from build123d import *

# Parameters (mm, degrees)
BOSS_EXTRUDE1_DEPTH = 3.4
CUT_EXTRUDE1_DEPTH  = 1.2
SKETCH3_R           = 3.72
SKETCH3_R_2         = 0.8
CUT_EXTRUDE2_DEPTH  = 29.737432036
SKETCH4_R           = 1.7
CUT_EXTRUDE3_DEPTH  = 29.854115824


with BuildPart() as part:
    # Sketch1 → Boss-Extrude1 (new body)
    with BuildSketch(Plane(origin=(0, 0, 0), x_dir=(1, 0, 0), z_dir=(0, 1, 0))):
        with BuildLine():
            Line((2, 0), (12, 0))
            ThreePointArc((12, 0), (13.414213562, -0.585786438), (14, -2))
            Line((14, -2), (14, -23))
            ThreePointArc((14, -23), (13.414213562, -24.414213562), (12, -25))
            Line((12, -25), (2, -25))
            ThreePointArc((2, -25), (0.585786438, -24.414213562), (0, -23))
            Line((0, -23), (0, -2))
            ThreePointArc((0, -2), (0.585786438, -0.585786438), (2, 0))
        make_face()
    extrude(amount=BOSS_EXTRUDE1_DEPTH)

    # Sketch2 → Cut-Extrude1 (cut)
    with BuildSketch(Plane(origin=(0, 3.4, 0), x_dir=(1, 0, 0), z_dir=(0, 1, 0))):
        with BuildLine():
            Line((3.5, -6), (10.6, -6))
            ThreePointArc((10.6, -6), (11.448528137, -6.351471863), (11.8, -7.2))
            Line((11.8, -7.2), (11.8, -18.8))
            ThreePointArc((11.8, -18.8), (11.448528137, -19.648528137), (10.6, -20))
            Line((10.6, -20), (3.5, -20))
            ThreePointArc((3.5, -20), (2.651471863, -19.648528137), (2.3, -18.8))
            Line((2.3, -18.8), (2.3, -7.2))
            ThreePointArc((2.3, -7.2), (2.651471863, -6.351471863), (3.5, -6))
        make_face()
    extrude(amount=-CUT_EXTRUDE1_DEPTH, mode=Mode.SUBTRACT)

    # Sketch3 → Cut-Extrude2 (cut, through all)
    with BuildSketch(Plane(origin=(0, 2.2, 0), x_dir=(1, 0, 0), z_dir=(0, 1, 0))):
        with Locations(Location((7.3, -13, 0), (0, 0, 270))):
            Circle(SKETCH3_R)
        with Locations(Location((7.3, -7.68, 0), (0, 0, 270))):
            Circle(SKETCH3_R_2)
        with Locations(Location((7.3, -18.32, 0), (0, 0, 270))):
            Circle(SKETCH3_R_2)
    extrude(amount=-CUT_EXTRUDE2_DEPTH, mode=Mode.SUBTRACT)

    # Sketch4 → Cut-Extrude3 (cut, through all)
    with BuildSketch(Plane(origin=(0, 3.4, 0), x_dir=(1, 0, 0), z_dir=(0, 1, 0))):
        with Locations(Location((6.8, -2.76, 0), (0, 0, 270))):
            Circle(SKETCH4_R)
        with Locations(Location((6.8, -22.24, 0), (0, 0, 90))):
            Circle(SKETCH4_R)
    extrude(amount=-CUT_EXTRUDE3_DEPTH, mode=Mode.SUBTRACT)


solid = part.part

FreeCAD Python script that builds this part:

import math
import FreeCAD as App
import Part
import Sketcher
from FreeCAD import Vector
Q = App.Units.Quantity

doc = App.newDocument("Part")
body = doc.addObject("PartDesign::Body", "Body")

# Sketch on XZ plane
sketch1 = body.newObject("Sketcher::SketchObject", "Sketch")
sketch1.AttachmentSupport = (doc.getObject("XZ_Plane"), [""])
sketch1.MapMode = "FlatFace"
sketch1.addGeometry([
    Part.LineSegment(Vector(12, 0, 0), Vector(2, 0, 0)),  # 0
    Part.ArcOfCircle(Part.Circle(Vector(2, 2, 0), Vector(0, 0, 1), 2), math.radians(-180), math.radians(-90)),  # 1
    Part.LineSegment(Vector(0, 2, 0), Vector(0, 23, 0)),  # 2
    Part.ArcOfCircle(Part.Circle(Vector(2, 23, 0), Vector(0, 0, 1), 2), math.radians(90), math.radians(180)),  # 3
    Part.LineSegment(Vector(2, 25, 0), Vector(12, 25, 0)),  # 4
    Part.ArcOfCircle(Part.Circle(Vector(12, 23, 0), Vector(0, 0, 1), 2), math.radians(0), math.radians(90)),  # 5
    Part.LineSegment(Vector(14, 23, 0), Vector(14, 2, 0)),  # 6
    Part.ArcOfCircle(Part.Circle(Vector(12, 2, 0), Vector(0, 0, 1), 2), math.radians(-90), math.radians(0)),  # 7
], False)
sketch1.addConstraint([
    Sketcher.Constraint("Tangent", 0, 2, 1, 2),
    Sketcher.Constraint("Tangent", 1, 1, 2, 1),
    Sketcher.Constraint("Tangent", 2, 2, 3, 2),
    Sketcher.Constraint("Tangent", 3, 1, 4, 1),
    Sketcher.Constraint("Tangent", 4, 2, 5, 2),
    Sketcher.Constraint("Tangent", 5, 1, 6, 1),
    Sketcher.Constraint("Tangent", 6, 2, 7, 2),
    Sketcher.Constraint("Tangent", 7, 1, 0, 1),
    Sketcher.Constraint("Horizontal", 0),
    Sketcher.Constraint("Vertical", 2),
    Sketcher.Constraint("Horizontal", 4),
    Sketcher.Constraint("Vertical", 6),
    Sketcher.Constraint("Equal", 1, 3),
    Sketcher.Constraint("Equal", 3, 5),
    Sketcher.Constraint("Equal", 5, 7),
    Sketcher.Constraint("PointOnObject", 0, 2, -1),
    Sketcher.Constraint("PointOnObject", 1, 1, -2),
    Sketcher.Constraint("Radius", 1, Q("2 mm")),
    Sketcher.Constraint("DistanceX", 0, 2, 0, 1, Q("10 mm")),
    Sketcher.Constraint("DistanceY", 2, 1, 2, 2, Q("21 mm")),
])
pad1 = body.newObject("PartDesign::Pad", "Pad")
pad1.Profile = sketch1
pad1.Length = 3.4
pad1.Reversed = True

# Sketch on XZ plane
sketch2 = body.newObject("Sketcher::SketchObject", "Sketch001")
sketch2.AttachmentSupport = (doc.getObject("XZ_Plane"), [""])
sketch2.MapMode = "FlatFace"
sketch2.AttachmentOffset = App.Placement(Vector(0, 0, -3.4), App.Rotation())
sketch2.addGeometry([
    Part.LineSegment(Vector(10.6, 6, 0), Vector(3.5, 6, 0)),  # 0
    Part.ArcOfCircle(Part.Circle(Vector(3.5, 7.2, 0), Vector(0, 0, 1), 1.2), math.radians(-180), math.radians(-90)),  # 1
    Part.LineSegment(Vector(2.3, 7.2, 0), Vector(2.3, 18.8, 0)),  # 2
    Part.ArcOfCircle(Part.Circle(Vector(3.5, 18.8, 0), Vector(0, 0, 1), 1.2), math.radians(90), math.radians(180)),  # 3
    Part.LineSegment(Vector(3.5, 20, 0), Vector(10.6, 20, 0)),  # 4
    Part.ArcOfCircle(Part.Circle(Vector(10.6, 18.8, 0), Vector(0, 0, 1), 1.2), math.radians(0), math.radians(90)),  # 5
    Part.LineSegment(Vector(11.8, 18.8, 0), Vector(11.8, 7.2, 0)),  # 6
    Part.ArcOfCircle(Part.Circle(Vector(10.6, 7.2, 0), Vector(0, 0, 1), 1.2), math.radians(-90), math.radians(0)),  # 7
], False)
sketch2.addConstraint([
    Sketcher.Constraint("Tangent", 0, 2, 1, 2),
    Sketcher.Constraint("Tangent", 1, 1, 2, 1),
    Sketcher.Constraint("Tangent", 2, 2, 3, 2),
    Sketcher.Constraint("Tangent", 3, 1, 4, 1),
    Sketcher.Constraint("Tangent", 4, 2, 5, 2),
    Sketcher.Constraint("Tangent", 5, 1, 6, 1),
    Sketcher.Constraint("Tangent", 6, 2, 7, 2),
    Sketcher.Constraint("Tangent", 7, 1, 0, 1),
    Sketcher.Constraint("Horizontal", 0),
    Sketcher.Constraint("Vertical", 2),
    Sketcher.Constraint("Horizontal", 4),
    Sketcher.Constraint("Vertical", 6),
    Sketcher.Constraint("Equal", 1, 3),
    Sketcher.Constraint("Equal", 3, 5),
    Sketcher.Constraint("Equal", 5, 7),
    Sketcher.Constraint("Radius", 1, Q("1.2 mm")),
    Sketcher.Constraint("DistanceX", 0, 2, 0, 1, Q("7.1 mm")),
    Sketcher.Constraint("DistanceY", 2, 1, 2, 2, Q("11.6 mm")),
    Sketcher.Constraint("DistanceY", -1, 1, 0, 2, Q("6 mm")),
    Sketcher.Constraint("DistanceX", -1, 1, 1, 3, Q("3.5 mm")),
])
pocket1 = body.newObject("PartDesign::Pocket", "Pocket")
pocket1.Profile = sketch2
pocket1.Length = 1.2
pocket1.Reversed = True

# Sketch on XZ plane
sketch3 = body.newObject("Sketcher::SketchObject", "Sketch002")
sketch3.AttachmentSupport = (doc.getObject("XZ_Plane"), [""])
sketch3.MapMode = "FlatFace"
sketch3.AttachmentOffset = App.Placement(Vector(0, 0, -2.2), App.Rotation())
sketch3.addGeometry([
    Part.Circle(Vector(7.3, 13, 0), Vector(0, 0, 1), 3.7),
    Part.Circle(Vector(7.3, 7.7, 0), Vector(0, 0, 1), 0.8),
    Part.Circle(Vector(7.3, 18.3, 0), Vector(0, 0, 1), 0.8),
], False)
sketch3.addConstraint([
    Sketcher.Constraint("Equal", 1, 2),
    Sketcher.Constraint("Vertical", 0, 3, 1, 3),
    Sketcher.Constraint("Vertical", 1, 3, 2, 3),
    Sketcher.Constraint("Diameter", 1, Q("1.6 mm")),
    Sketcher.Constraint("Diameter", 0, Q("7.44 mm")),
    Sketcher.Constraint("DistanceY", -1, 1, 0, 3, Q("13 mm")),
    Sketcher.Constraint("DistanceX", -1, 1, 0, 3, Q("7.3 mm")),
    Sketcher.Constraint("DistanceY", -1, 1, 1, 3, Q("7.68 mm")),
    Sketcher.Constraint("DistanceY", -1, 1, 2, 3, Q("18.32 mm")),
])
pocket2 = body.newObject("PartDesign::Pocket", "Pocket001")
pocket2.Profile = sketch3
pocket2.Type = "ThroughAll"
pocket2.Reversed = True

# Sketch on XZ plane
sketch4 = body.newObject("Sketcher::SketchObject", "Sketch003")
sketch4.AttachmentSupport = (doc.getObject("XZ_Plane"), [""])
sketch4.MapMode = "FlatFace"
sketch4.AttachmentOffset = App.Placement(Vector(0, 0, -3.4), App.Rotation())
sketch4.addGeometry([
    Part.Circle(Vector(6.8, 2.8, 0), Vector(0, 0, 1), 1.7),
    Part.Circle(Vector(6.8, 22.2, 0), Vector(0, 0, 1), 1.7),
], False)
sketch4.addConstraint([
    Sketcher.Constraint("Equal", 0, 1),
    Sketcher.Constraint("Vertical", 0, 3, 1, 3),
    Sketcher.Constraint("Diameter", 0, Q("3.4 mm")),
    Sketcher.Constraint("DistanceX", -1, 1, 0, 3, Q("6.8 mm")),
    Sketcher.Constraint("DistanceY", -1, 1, 0, 3, Q("2.76 mm")),
    Sketcher.Constraint("DistanceY", -1, 1, 1, 3, Q("22.24 mm")),
])
pocket3 = body.newObject("PartDesign::Pocket", "Pocket002")
pocket3.Profile = sketch4
pocket3.Type = "ThroughAll"
pocket3.Reversed = True

doc.recompute()
